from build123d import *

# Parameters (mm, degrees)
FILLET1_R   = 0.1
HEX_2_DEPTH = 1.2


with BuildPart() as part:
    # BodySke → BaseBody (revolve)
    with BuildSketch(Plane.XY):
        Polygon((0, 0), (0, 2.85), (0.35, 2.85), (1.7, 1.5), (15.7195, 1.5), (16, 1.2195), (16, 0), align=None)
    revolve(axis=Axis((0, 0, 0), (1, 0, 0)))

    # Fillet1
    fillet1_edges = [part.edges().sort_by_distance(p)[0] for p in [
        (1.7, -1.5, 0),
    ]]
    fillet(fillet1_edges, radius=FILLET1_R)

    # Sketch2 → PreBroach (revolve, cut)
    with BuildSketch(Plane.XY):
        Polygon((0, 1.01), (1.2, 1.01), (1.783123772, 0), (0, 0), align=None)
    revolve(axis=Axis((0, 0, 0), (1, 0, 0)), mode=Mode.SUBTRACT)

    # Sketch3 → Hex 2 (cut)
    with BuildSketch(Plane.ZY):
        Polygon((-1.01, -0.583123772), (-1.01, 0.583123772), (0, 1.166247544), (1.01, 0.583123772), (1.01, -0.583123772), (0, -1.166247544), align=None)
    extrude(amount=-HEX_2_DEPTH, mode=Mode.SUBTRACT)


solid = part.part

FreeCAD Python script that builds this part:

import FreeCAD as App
import Part
import Sketcher
from FreeCAD import Vector
Q = App.Units.Quantity


def edges_at(feature, points):
    """Names of the edges that pass closest to the given points."""
    edges = feature.Shape.Edges
    near = lambda p: min(range(len(edges)), key=lambda i: edges[i].distToShape(Part.Vertex(*p))[0])
    return sorted({f"Edge{near(p) + 1}" for p in points})

doc = App.newDocument("Part")
body = doc.addObject("PartDesign::Body", "Body")

# Sketch on XY plane
sketch1 = body.newObject("Sketcher::SketchObject", "Sketch")
sketch1.AttachmentSupport = (doc.getObject("XY_Plane"), [""])
sketch1.MapMode = "FlatFace"
sketch1.addGeometry(Part.LineSegment(Vector(0, 2.85, 0), Vector(0, 0, 0)), False)
sketch1.addGeometry(Part.LineSegment(Vector(0, 0, 0), Vector(16, 0, 0)), False)
sketch1.addGeometry(Part.LineSegment(Vector(16, 0, 0), Vector(16, 1.2195, 0)), False)
sketch1.addGeometry(Part.LineSegment(Vector(16, 1.2195, 0), Vector(15.7195, 1.5, 0)), False)
sketch1.addGeometry(Part.LineSegment(Vector(15.7195, 1.5, 0), Vector(1.7, 1.5, 0)), False)
sketch1.addGeometry(Part.LineSegment(Vector(1.7, 1.5, 0), Vector(0.35, 2.85, 0)), False)
sketch1.addGeometry(Part.LineSegment(Vector(0.35, 2.85, 0), Vector(0, 2.85, 0)), False)
sketch1.addConstraint(Sketcher.Constraint("Coincident", 0, 2, 1, 1))
sketch1.addConstraint(Sketcher.Constraint("Coincident", 1, 2, 2, 1))
sketch1.addConstraint(Sketcher.Constraint("Coincident", 2, 2, 3, 1))
sketch1.addConstraint(Sketcher.Constraint("Coincident", 3, 2, 4, 1))
sketch1.addConstraint(Sketcher.Constraint("Coincident", 4, 2, 5, 1))
sketch1.addConstraint(Sketcher.Constraint("Coincident", 5, 2, 6, 1))
sketch1.addConstraint(Sketcher.Constraint("Coincident", 6, 2, 0, 1))
sketch1.addConstraint(Sketcher.Constraint("Vertical", 0))
sketch1.addConstraint(Sketcher.Constraint("Horizontal", 1))
sketch1.addConstraint(Sketcher.Constraint("Vertical", 2))
sketch1.addConstraint(Sketcher.Constraint("Horizontal", 4))
sketch1.addConstraint(Sketcher.Constraint("Horizontal", 6))
sketch1.addConstraint(Sketcher.Constraint("Coincident", 0, 2, -1, 1))
sketch1.addConstraint(Sketcher.Constraint("Parallel", 3, 5))
sketch1.addConstraint(Sketcher.Constraint("DistanceX", 1, 1, 1, 2, 16.0))
sketch1.addConstraint(Sketcher.Constraint("Angle", 3, Q("135 deg")))
sketch1.addConstraint(Sketcher.Constraint("DistanceX", 6, 2, 6, 1, 0.35))
sketch1.addConstraint(Sketcher.Constraint("DistanceY", 0, 2, 0, 1, 2.85))
sketch1.addConstraint(Sketcher.Constraint("DistanceY", -1, 1, 3, 2, 1.5))
sketch1.addConstraint(Sketcher.Constraint("DistanceX", 4, 2, 4, 1, 14.0195))
revolution = body.newObject("PartDesign::Revolution", "Revolution")
revolution.Profile = sketch1
revolution.ReferenceAxis = (sketch1, ["H_Axis"])
revolution.Angle = 360
doc.recompute()

fillet = body.newObject("PartDesign::Fillet", "Fillet")
fillet.Base = (revolution, edges_at(revolution, [(1.7, -1.5, 0)]))
fillet.Radius = 0.1

# Sketch on XY plane
sketch2 = body.newObject("Sketcher::SketchObject", "Sketch001")
sketch2.AttachmentSupport = (doc.getObject("XY_Plane"), [""])
sketch2.MapMode = "FlatFace"
sketch2.addGeometry(Part.LineSegment(Vector(1.2, 1.01, 0), Vector(0, 1.01, 0)), False)
sketch2.addGeometry(Part.LineSegment(Vector(0, 1.01, 0), Vector(0, 0, 0)), False)
sketch2.addGeometry(Part.LineSegment(Vector(0, 0, 0), Vector(1.783124, 0, 0)), False)
sketch2.addGeometry(Part.LineSegment(Vector(1.783124, 0, 0), Vector(1.2, 1.01, 0)), False)
sketch2.addConstraint(Sketcher.Constraint("Coincident", 0, 2, 1, 1))
sketch2.addConstraint(Sketcher.Constraint("Coincident", 1, 2, 2, 1))
sketch2.addConstraint(Sketcher.Constraint("Coincident", 2, 2, 3, 1))
sketch2.addConstraint(Sketcher.Constraint("Coincident", 3, 2, 0, 1))
sketch2.addConstraint(Sketcher.Constraint("Horizontal", 0))
sketch2.addConstraint(Sketcher.Constraint("Vertical", 1))
sketch2.addConstraint(Sketcher.Constraint("Horizontal", 2))
sketch2.addConstraint(Sketcher.Constraint("Coincident", 1, 2, -1, 1))
sketch2.addConstraint(Sketcher.Constraint("Angle", 3, Q("120 deg")))
sketch2.addConstraint(Sketcher.Constraint("DistanceX", 0, 2, 0, 1, 1.2))
sketch2.addConstraint(Sketcher.Constraint("DistanceY", 1, 2, 1, 1, 1.01))
groove = body.newObject("PartDesign::Groove", "Groove")
groove.Profile = sketch2
groove.ReferenceAxis = (sketch2, ["H_Axis"])
groove.Angle = 360

# Sketch on YZ plane
sketch3 = body.newObject("Sketcher::SketchObject", "Sketch002")
sketch3.AttachmentSupport = (doc.getObject("YZ_Plane"), [""])
sketch3.MapMode = "FlatFace"
sketch3.addGeometry(Part.LineSegment(Vector(0.583124, -1.01, 0), Vector(-0.583124, -1.01, 0)), False)
sketch3.addGeometry(Part.LineSegment(Vector(-0.583124, -1.01, 0), Vector(-1.166248, 0, 0)), False)
sketch3.addGeometry(Part.LineSegment(Vector(-1.166248, 0, 0), Vector(-0.583124, 1.01, 0)), False)
sketch3.addGeometry(Part.LineSegment(Vector(-0.583124, 1.01, 0), Vector(0.583124, 1.01, 0)), False)
sketch3.addGeometry(Part.LineSegment(Vector(0.583124, 1.01, 0), Vector(1.166248, 0, 0)), False)
sketch3.addGeometry(Part.LineSegment(Vector(1.166248, 0, 0), Vector(0.583124, -1.01, 0)), False)
sketch3.addConstraint(Sketcher.Constraint("Coincident", 0, 2, 1, 1))
sketch3.addConstraint(Sketcher.Constraint("Coincident", 1, 2, 2, 1))
sketch3.addConstraint(Sketcher.Constraint("Coincident", 2, 2, 3, 1))
sketch3.addConstraint(Sketcher.Constraint("Coincident", 3, 2, 4, 1))
sketch3.addConstraint(Sketcher.Constraint("Coincident", 4, 2, 5, 1))
sketch3.addConstraint(Sketcher.Constraint("Coincident", 5, 2, 0, 1))
sketch3.addConstraint(Sketcher.Constraint("Horizontal", 0))
sketch3.addConstraint(Sketcher.Constraint("Horizontal", 3))
sketch3.addConstraint(Sketcher.Constraint("Symmetric", 0, 2, 3, 2, -1, 1))
sketch3.addConstraint(Sketcher.Constraint("Symmetric", 1, 2, 4, 2, -1, 1))
sketch3.addConstraint(Sketcher.Constraint("PointOnObject", 1, 2, -1))
sketch3.addConstraint(Sketcher.Constraint("Parallel", 2, 5))
sketch3.addConstraint(Sketcher.Constraint("Vertical", 0, 2, 2, 2))
sketch3.addConstraint(Sketcher.Constraint("Angle", 1, Q("120 deg")))
sketch3.addConstraint(Sketcher.Constraint("DistanceY", 0, 2, -1, 1, 1.01))
sketch3.addConstraint(Sketcher.Constraint("DistanceX", 0, 2, 0, 1, 1.166248))
pocket1 = body.newObject("PartDesign::Pocket", "Pocket")
pocket1.Profile = sketch3
pocket1.Length = 1.2
pocket1.Reversed = True

doc.recompute()
